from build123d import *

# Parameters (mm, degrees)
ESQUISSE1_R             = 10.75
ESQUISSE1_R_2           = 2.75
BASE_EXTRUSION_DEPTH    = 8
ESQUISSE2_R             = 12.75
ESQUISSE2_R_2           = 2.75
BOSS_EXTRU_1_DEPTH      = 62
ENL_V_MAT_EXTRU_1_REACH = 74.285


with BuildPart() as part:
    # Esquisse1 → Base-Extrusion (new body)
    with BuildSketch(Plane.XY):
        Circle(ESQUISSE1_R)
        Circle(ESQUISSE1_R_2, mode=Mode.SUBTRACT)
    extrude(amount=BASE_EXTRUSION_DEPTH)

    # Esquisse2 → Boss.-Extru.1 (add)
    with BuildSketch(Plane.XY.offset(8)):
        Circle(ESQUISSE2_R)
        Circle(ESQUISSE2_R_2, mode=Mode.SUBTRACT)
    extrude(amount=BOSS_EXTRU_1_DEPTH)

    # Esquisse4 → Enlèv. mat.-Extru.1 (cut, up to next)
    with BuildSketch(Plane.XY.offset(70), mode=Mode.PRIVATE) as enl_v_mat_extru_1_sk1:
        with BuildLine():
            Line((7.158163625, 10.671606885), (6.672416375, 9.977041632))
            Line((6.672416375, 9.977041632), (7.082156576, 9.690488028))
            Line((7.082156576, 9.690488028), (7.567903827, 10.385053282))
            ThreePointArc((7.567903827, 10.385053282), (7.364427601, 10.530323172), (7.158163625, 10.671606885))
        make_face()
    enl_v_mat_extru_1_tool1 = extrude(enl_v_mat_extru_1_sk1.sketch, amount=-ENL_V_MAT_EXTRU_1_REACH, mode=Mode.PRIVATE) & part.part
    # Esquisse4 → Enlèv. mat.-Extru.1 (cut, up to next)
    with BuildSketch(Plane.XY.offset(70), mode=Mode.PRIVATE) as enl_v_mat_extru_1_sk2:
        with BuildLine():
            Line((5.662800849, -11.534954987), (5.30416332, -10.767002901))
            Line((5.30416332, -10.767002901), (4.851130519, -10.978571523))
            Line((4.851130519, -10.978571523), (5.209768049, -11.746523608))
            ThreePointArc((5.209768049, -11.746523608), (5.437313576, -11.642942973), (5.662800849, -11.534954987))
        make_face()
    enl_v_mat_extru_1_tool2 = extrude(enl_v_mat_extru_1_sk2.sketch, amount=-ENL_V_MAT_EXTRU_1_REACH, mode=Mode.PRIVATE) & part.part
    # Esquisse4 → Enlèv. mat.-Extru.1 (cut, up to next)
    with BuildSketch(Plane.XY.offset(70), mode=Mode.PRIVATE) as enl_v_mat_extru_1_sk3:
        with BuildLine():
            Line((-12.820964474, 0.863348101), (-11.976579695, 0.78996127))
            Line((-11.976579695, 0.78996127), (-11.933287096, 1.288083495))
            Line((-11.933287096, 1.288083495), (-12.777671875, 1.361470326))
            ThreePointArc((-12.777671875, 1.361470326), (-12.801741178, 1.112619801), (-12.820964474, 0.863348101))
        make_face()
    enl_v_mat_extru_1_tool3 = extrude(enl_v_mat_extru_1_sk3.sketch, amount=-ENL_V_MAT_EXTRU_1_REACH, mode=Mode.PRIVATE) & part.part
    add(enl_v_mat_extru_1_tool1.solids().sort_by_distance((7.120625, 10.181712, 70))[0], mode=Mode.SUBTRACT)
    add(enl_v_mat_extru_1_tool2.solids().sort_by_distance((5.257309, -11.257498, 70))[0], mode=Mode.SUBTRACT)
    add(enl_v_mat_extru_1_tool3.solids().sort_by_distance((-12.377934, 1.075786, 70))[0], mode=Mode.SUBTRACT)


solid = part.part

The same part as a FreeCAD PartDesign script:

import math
import FreeCAD as App
import Part
import Sketcher
from FreeCAD import Vector

doc = App.newDocument("Part")
body = doc.addObject("PartDesign::Body", "Body")

# Sketch on XY plane
sketch1 = doc.addObject("Sketcher::SketchObject", "Sketch")
body.addObject(sketch1)
sketch1.AttachmentSupport = (doc.XY_Plane, [""])
sketch1.MapMode = "FlatFace"
sketch1.addGeometry([
    Part.Circle(Vector(0, 0, 0), Vector(0, 0, 1), 10.8),
    Part.Circle(Vector(0, 0, 0), Vector(0, 0, 1), 2.8),
], False)
sketch1.addConstraint([
    Sketcher.Constraint("Coincident", 0, 3, -1, 1),
    Sketcher.Constraint("Coincident", 1, 3, -1, 1),
    Sketcher.Constraint("Diameter", 0, 21.5),
    Sketcher.Constraint("Diameter", 1, 5.5),
])
pad1 = doc.addObject("PartDesign::Pad", "Pad")
body.addObject(pad1)
pad1.Profile = sketch1
pad1.Length = 8

# Sketch on XY plane
sketch2 = doc.addObject("Sketcher::SketchObject", "Sketch001")
body.addObject(sketch2)
sketch2.AttachmentSupport = (doc.XY_Plane, [""])
sketch2.MapMode = "FlatFace"
sketch2.AttachmentOffset = App.Placement(Vector(0, 0, 8), App.Rotation())
sketch2.addGeometry([
    Part.Circle(Vector(0, 0, 0), Vector(0, 0, 1), 12.8),
    Part.Circle(Vector(0, 0, 0), Vector(0, 0, 1), 2.8),
], False)
sketch2.addConstraint([
    Sketcher.Constraint("Coincident", 0, 3, -1, 1),
    Sketcher.Constraint("Coincident", 1, 3, -1, 1),
    Sketcher.Constraint("Diameter", 0, 25.5),
    Sketcher.Constraint("Diameter", 1, 5.5),
])
pad2 = doc.addObject("PartDesign::Pad", "Pad001")
body.addObject(pad2)
pad2.Profile = sketch2
pad2.Length = 62

# Sketch on XY plane
sketch3 = doc.addObject("Sketcher::SketchObject", "Sketch002")
body.addObject(sketch3)
sketch3.AttachmentSupport = (doc.XY_Plane, [""])
sketch3.MapMode = "FlatFace"
sketch3.AttachmentOffset = App.Placement(Vector(0, 0, 70), App.Rotation())
sketch3.addGeometry([
    Part.LineSegment(Vector(7.2, 10.7, 0), Vector(6.7, 10, 0)),
    Part.LineSegment(Vector(6.7, 10, 0), Vector(7.1, 9.7, 0)),
    Part.LineSegment(Vector(7.1, 9.7, 0), Vector(7.6, 10.4, 0)),
    Part.ArcOfCircle(Part.Circle(Vector(0, 0, 0), Vector(0, 0, 1), 12.9), math.radians(53.92), math.radians(56.15)),
], False)
sketch3.addConstraint([
    Sketcher.Constraint("Coincident", 0, 2, 1, 1),
    Sketcher.Constraint("Coincident", 1, 2, 2, 1),
    Sketcher.Constraint("Coincident", 2, 2, 3, 1),
    Sketcher.Constraint("Coincident", 3, 2, 0, 1),
    Sketcher.Constraint("Coincident", 3, 3, -1, 1),
    Sketcher.Constraint("Perpendicular", 0, 1),
    Sketcher.Constraint("Perpendicular", 1, 2),
    Sketcher.Constraint("Equal", 0, 2),
    Sketcher.Constraint("Radius", 3, 12.85),
    Sketcher.Constraint("Distance", 1, 0.5),
    Sketcher.Constraint("DistanceY", -1, 1, 0, 2, 9.977042),
    Sketcher.Constraint("DistanceY", -1, 1, 1, 2, 9.690488),
])
pocket1 = doc.addObject("PartDesign::Pocket", "Pocket")
body.addObject(pocket1)
pocket1.Profile = sketch3
pocket1.Type = "UpToFirst"

# Sketch on XY plane
sketch4 = doc.addObject("Sketcher::SketchObject", "Sketch003")
body.addObject(sketch4)
sketch4.AttachmentSupport = (doc.XY_Plane, [""])
sketch4.MapMode = "FlatFace"
sketch4.AttachmentOffset = App.Placement(Vector(0, 0, 70), App.Rotation())
sketch4.addGeometry([
    Part.LineSegment(Vector(5.66, -11.53, 0), Vector(5.3, -10.77, 0)),
    Part.LineSegment(Vector(5.3, -10.77, 0), Vector(4.85, -10.98, 0)),
    Part.LineSegment(Vector(4.85, -10.98, 0), Vector(5.21, -11.75, 0)),
    Part.ArcOfCircle(Part.Circle(Vector(0, 0, 0), Vector(0, 0, 1), 12.85), math.radians(-66.08), math.radians(-63.85)),
], False)
sketch4.addConstraint([
    Sketcher.Constraint("Coincident", 0, 2, 1, 1),
    Sketcher.Constraint("Coincident", 1, 2, 2, 1),
    Sketcher.Constraint("Coincident", 2, 2, 3, 1),
    Sketcher.Constraint("Coincident", 3, 2, 0, 1),
    Sketcher.Constraint("Coincident", 3, 3, -1, 1),
    Sketcher.Constraint("Perpendicular", 0, 1),
    Sketcher.Constraint("Perpendicular", 1, 2),
    Sketcher.Constraint("Equal", 0, 2),
    Sketcher.Constraint("Radius", 3, 12.850001),
    Sketcher.Constraint("Distance", 1, 0.5),
    Sketcher.Constraint("DistanceX", -1, 1, 3, 2, 5.662801),
    Sketcher.Constraint("DistanceX", -1, 1, 1, 2, 4.851131),
])
pocket2 = doc.addObject("PartDesign::Pocket", "Pocket001")
body.addObject(pocket2)
pocket2.Profile = sketch4
pocket2.Type = "UpToFirst"

# Sketch on XY plane
sketch5 = doc.addObject("Sketcher::SketchObject", "Sketch004")
body.addObject(sketch5)
sketch5.AttachmentSupport = (doc.XY_Plane, [""])
sketch5.MapMode = "FlatFace"
sketch5.AttachmentOffset = App.Placement(Vector(0, 0, 70), App.Rotation())
sketch5.addGeometry([
    Part.LineSegment(Vector(-12.8, 0.9, 0), Vector(-12, 0.8, 0)),
    Part.LineSegment(Vector(-12, 0.8, 0), Vector(-11.9, 1.3, 0)),
    Part.LineSegment(Vector(-11.9, 1.3, 0), Vector(-12.8, 1.4, 0)),
    Part.ArcOfCircle(Part.Circle(Vector(0, 0, 0), Vector(0, 0, 1), 12.8), math.radians(173.92), math.radians(176.15)),
], False)
sketch5.addConstraint([
    Sketcher.Constraint("Coincident", 0, 2, 1, 1),
    Sketcher.Constraint("Coincident", 1, 2, 2, 1),
    Sketcher.Constraint("Coincident", 2, 2, 3, 1),
    Sketcher.Constraint("Coincident", 3, 2, 0, 1),
    Sketcher.Constraint("Coincident", 3, 3, -1, 1),
    Sketcher.Constraint("Perpendicular", 0, 1),
    Sketcher.Constraint("Perpendicular", 1, 2),
    Sketcher.Constraint("Equal", 0, 2),
    Sketcher.Constraint("Distance", 1, 0.5),
    Sketcher.Constraint("Radius", 3, 12.849996),
    Sketcher.Constraint("DistanceX", 0, 2, -1, 1, 11.97658),
    Sketcher.Constraint("DistanceY", -1, 1, 0, 2, 0.789961),
])
pocket3 = doc.addObject("PartDesign::Pocket", "Pocket002")
body.addObject(pocket3)
pocket3.Profile = sketch5
pocket3.Type = "UpToFirst"

doc.recompute()
